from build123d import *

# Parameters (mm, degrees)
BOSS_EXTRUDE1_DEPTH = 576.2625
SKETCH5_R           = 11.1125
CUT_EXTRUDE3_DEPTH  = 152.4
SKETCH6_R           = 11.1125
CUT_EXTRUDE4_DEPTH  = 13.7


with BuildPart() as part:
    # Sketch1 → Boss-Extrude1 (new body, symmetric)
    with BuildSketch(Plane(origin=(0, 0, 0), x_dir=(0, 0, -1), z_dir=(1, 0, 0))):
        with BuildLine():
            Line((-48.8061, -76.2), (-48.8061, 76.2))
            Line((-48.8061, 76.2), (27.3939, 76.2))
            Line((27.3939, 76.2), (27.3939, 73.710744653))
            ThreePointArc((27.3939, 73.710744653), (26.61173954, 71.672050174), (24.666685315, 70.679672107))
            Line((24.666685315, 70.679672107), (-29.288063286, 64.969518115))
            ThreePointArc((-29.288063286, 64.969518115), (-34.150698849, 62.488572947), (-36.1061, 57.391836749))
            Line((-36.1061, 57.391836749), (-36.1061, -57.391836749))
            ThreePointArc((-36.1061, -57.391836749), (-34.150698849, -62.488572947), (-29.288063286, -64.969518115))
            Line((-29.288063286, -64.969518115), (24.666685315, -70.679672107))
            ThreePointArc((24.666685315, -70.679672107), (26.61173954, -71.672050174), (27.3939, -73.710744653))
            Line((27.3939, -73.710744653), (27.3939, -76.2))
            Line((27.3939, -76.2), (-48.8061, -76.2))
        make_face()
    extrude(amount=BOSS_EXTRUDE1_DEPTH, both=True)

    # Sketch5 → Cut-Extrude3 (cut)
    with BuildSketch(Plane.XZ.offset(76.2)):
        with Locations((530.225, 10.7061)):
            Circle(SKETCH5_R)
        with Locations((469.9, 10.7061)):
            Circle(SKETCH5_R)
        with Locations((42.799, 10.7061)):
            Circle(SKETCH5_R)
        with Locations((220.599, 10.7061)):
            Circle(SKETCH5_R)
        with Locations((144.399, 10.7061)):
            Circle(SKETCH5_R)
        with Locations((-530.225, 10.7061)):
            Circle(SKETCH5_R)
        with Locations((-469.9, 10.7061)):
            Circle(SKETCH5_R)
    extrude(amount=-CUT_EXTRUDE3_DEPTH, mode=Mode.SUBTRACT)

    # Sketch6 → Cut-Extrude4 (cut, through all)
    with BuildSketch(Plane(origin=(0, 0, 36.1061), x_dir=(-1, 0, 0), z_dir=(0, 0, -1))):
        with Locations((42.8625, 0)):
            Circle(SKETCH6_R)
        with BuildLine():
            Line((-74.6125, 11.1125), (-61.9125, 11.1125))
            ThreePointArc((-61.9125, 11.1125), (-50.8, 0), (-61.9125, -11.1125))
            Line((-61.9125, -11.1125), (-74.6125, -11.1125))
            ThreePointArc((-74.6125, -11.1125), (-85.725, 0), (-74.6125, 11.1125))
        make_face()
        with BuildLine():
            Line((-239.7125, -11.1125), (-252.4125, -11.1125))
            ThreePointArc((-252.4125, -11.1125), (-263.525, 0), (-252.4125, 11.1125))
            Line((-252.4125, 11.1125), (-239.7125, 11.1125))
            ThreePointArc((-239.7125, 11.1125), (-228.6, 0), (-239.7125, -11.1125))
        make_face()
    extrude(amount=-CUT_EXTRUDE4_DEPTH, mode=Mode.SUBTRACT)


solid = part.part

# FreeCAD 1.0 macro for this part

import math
import FreeCAD as App
import Part
import Sketcher
Q = App.Units.Quantity

doc = App.newDocument("Part")
body = doc.addObject("PartDesign::Body", "Body")

sketch1 = doc.addObject("Sketcher::SketchObject", "Sketch")
body.addObject(sketch1)
sketch1.AttachmentSupport = (doc.YZ_Plane, [""])
sketch1.MapMode = "FlatFace"
sketch1.addGeometry(Part.LineSegment(App.Vector(76.2, 48.8, 0), App.Vector(-76.2, 48.8, 0)), False)
sketch1.addGeometry(Part.LineSegment(App.Vector(-76.2, 48.8, 0), App.Vector(-76.2, -27.4, 0)), False)
sketch1.addGeometry(Part.LineSegment(App.Vector(-76.2, -27.4, 0), App.Vector(-73.7, -27.4, 0)), False)
sketch1.addGeometry(Part.ArcOfCircle(Part.Circle(App.Vector(-73.7, -24.3, 0), App.Vector(0, 0, 1), 3), math.radians(-90), math.radians(-6)), False)
sketch1.addGeometry(Part.LineSegment(App.Vector(-70.7, -24.7, 0), App.Vector(-65, 29.3, 0)), False)
sketch1.addGeometry(Part.ArcOfCircle(Part.Circle(App.Vector(-57.4, 28.5, 0), App.Vector(0, 0, 1), 7.6), math.radians(90), math.radians(174)), False)
sketch1.addGeometry(Part.LineSegment(App.Vector(-57.4, 36.1, 0), App.Vector(57.4, 36.1, 0)), False)
sketch1.addGeometry(Part.ArcOfCircle(Part.Circle(App.Vector(57.4, 28.5, 0), App.Vector(0, 0, 1), 7.6), math.radians(6), math.radians(90)), False)
sketch1.addGeometry(Part.LineSegment(App.Vector(65, 29.3, 0), App.Vector(70.7, -24.7, 0)), False)
sketch1.addGeometry(Part.ArcOfCircle(Part.Circle(App.Vector(73.7, -24.3, 0), App.Vector(0, 0, 1), 3), math.radians(-174), math.radians(-90)), False)
sketch1.addGeometry(Part.LineSegment(App.Vector(73.7, -27.4, 0), App.Vector(76.2, -27.4, 0)), False)
sketch1.addGeometry(Part.LineSegment(App.Vector(76.2, -27.4, 0), App.Vector(76.2, 48.8, 0)), False)
sketch1.addConstraint(Sketcher.Constraint("Coincident", 0, 2, 1, 1))
sketch1.addConstraint(Sketcher.Constraint("Coincident", 1, 2, 2, 1))
sketch1.addConstraint(Sketcher.Constraint("Tangent", 2, 2, 3, 1))
sketch1.addConstraint(Sketcher.Constraint("Tangent", 3, 2, 4, 1))
sketch1.addConstraint(Sketcher.Constraint("Tangent", 4, 2, 5, 2))
sketch1.addConstraint(Sketcher.Constraint("Tangent", 5, 1, 6, 1))
sketch1.addConstraint(Sketcher.Constraint("Tangent", 6, 2, 7, 2))
sketch1.addConstraint(Sketcher.Constraint("Tangent", 7, 1, 8, 1))
sketch1.addConstraint(Sketcher.Constraint("Tangent", 8, 2, 9, 1))
sketch1.addConstraint(Sketcher.Constraint("Tangent", 9, 2, 10, 1))
sketch1.addConstraint(Sketcher.Constraint("Coincident", 10, 2, 11, 1))
sketch1.addConstraint(Sketcher.Constraint("Coincident", 11, 2, 0, 1))
sketch1.addConstraint(Sketcher.Constraint("Horizontal", 0))
sketch1.addConstraint(Sketcher.Constraint("Vertical", 1))
sketch1.addConstraint(Sketcher.Constraint("Horizontal", 2))
sketch1.addConstraint(Sketcher.Constraint("Horizontal", 6))
sketch1.addConstraint(Sketcher.Constraint("Horizontal", 10))
sketch1.addConstraint(Sketcher.Constraint("Vertical", 11))
sketch1.addConstraint(Sketcher.Constraint("Equal", 5, 7))
sketch1.addConstraint(Sketcher.Constraint("Equal", 3, 9))
sketch1.addConstraint(Sketcher.Constraint("Symmetric", 3, 3, 9, 3, -2))
sketch1.addConstraint(Sketcher.Constraint("Horizontal", 4, 2, 7, 1))
sketch1.addConstraint(Sketcher.Constraint("Equal", 2, 10))
sketch1.addConstraint(Sketcher.Constraint("Radius", 5, Q("0.3 in")))
sketch1.addConstraint(Sketcher.Constraint("DistanceX", 0, 2, 0, 1, Q("6 in")))
sketch1.addConstraint(Sketcher.Constraint("DistanceY", 1, 2, 1, 1, Q("3 in")))
sketch1.addConstraint(Sketcher.Constraint("Radius", 3, Q("0.12 in")))
sketch1.addConstraint(Sketcher.Constraint("DistanceY", 5, 3, 0, 2, Q("0.8 in")))
sketch1.addConstraint(Sketcher.Constraint("DistanceY", 3, 3, -1, 1, Q("0.9585 in")))
sketch1.addConstraint(Sketcher.Constraint("DistanceX", 2, 1, 2, 2, 2.489255))
sketch1.addConstraint(Sketcher.Constraint("DistanceX", 6, 1, 6, 2, 114.783673))
pad1 = doc.addObject("PartDesign::Pad", "Pad")
body.addObject(pad1)
pad1.Profile = sketch1
pad1.Length = Q("45.375 in")
pad1.Midplane = True

sketch2 = doc.addObject("Sketcher::SketchObject", "Sketch001")
body.addObject(sketch2)
sketch2.AttachmentSupport = (doc.XZ_Plane, [""])
sketch2.MapMode = "FlatFace"
sketch2.AttachmentOffset = App.Placement(App.Vector(0, 0, 3 * 25.4), App.Rotation())
sketch2.addGeometry(Part.Circle(App.Vector(530, 11, 0), App.Vector(0, 0, 1), 11), False)
sketch2.addGeometry(Part.Circle(App.Vector(470, 11, 0), App.Vector(0, 0, 1), 11), False)
sketch2.addGeometry(Part.Circle(App.Vector(43, 11, 0), App.Vector(0, 0, 1), 11), False)
sketch2.addGeometry(Part.Circle(App.Vector(221, 11, 0), App.Vector(0, 0, 1), 11), False)
sketch2.addGeometry(Part.Circle(App.Vector(144, 11, 0), App.Vector(0, 0, 1), 11), False)
sketch2.addGeometry(Part.Circle(App.Vector(-530, 11, 0), App.Vector(0, 0, 1), 11), False)
sketch2.addGeometry(Part.Circle(App.Vector(-470, 11, 0), App.Vector(0, 0, 1), 11), False)
sketch2.addConstraint(Sketcher.Constraint("Equal", 0, 1))
sketch2.addConstraint(Sketcher.Constraint("Equal", 1, 2))
sketch2.addConstraint(Sketcher.Constraint("Equal", 2, 3))
sketch2.addConstraint(Sketcher.Constraint("Equal", 3, 4))
sketch2.addConstraint(Sketcher.Constraint("Equal", 4, 5))
sketch2.addConstraint(Sketcher.Constraint("Equal", 5, 6))
sketch2.addConstraint(Sketcher.Constraint("Symmetric", 0, 3, 5, 3, -2))
sketch2.addConstraint(Sketcher.Constraint("Symmetric", 1, 3, 6, 3, -2))
sketch2.addConstraint(Sketcher.Constraint("Horizontal", 0, 3, 1, 3))
sketch2.addConstraint(Sketcher.Constraint("Horizontal", 1, 3, 2, 3))
sketch2.addConstraint(Sketcher.Constraint("Horizontal", 2, 3, 3, 3))
sketch2.addConstraint(Sketcher.Constraint("Horizontal", 3, 3, 4, 3))
sketch2.addConstraint(Sketcher.Constraint("Diameter", 0, Q("0.875 in")))
sketch2.addConstraint(Sketcher.Constraint("DistanceX", 2, 3, 3, 3, Q("7 in")))
sketch2.addConstraint(Sketcher.Constraint("DistanceX", 4, 3, 3, 3, Q("3 in")))
sketch2.addConstraint(Sketcher.Constraint("DistanceX", 6, 3, 1, 3, Q("37 in")))
sketch2.addConstraint(Sketcher.Constraint("DistanceX", 2, 3, 0, 3, Q("19.19 in")))
sketch2.addConstraint(Sketcher.Constraint("DistanceX", 5, 3, 2, 3, Q("22.56 in")))
sketch2.addConstraint(Sketcher.Constraint("DistanceY", -1, 1, 0, 3, Q("0.4215 in")))
pocket1 = doc.addObject("PartDesign::Pocket", "Pocket")
body.addObject(pocket1)
pocket1.Profile = sketch2
pocket1.Length = Q("6 in")

sketch3 = doc.addObject("Sketcher::SketchObject", "Sketch002")
body.addObject(sketch3)
sketch3.AttachmentSupport = (doc.XY_Plane, [""])
sketch3.MapMode = "FlatFace"
sketch3.AttachmentOffset = App.Placement(App.Vector(0, 0, 1.4215 * 25.4), App.Rotation())
sketch3.addGeometry(Part.Circle(App.Vector(-43, 0, 0), App.Vector(0, 0, 1), 11), False)
sketch3.addGeometry(Part.LineSegment(App.Vector(62, 11, 0), App.Vector(75, 11, 0)), False)
sketch3.addGeometry(Part.ArcOfCircle(Part.Circle(App.Vector(75, 0, 0), App.Vector(0, 0, 1), 11), math.radians(-90), math.radians(90)), False)
sketch3.addGeometry(Part.LineSegment(App.Vector(75, -11, 0), App.Vector(62, -11, 0)), False)
sketch3.addGeometry(Part.ArcOfCircle(Part.Circle(App.Vector(62, 0, 0), App.Vector(0, 0, 1), 11), math.radians(90), math.radians(270)), False)
sketch3.addGeometry(Part.LineSegment(App.Vector(252, -11, 0), App.Vector(240, -11, 0)), False)
sketch3.addGeometry(Part.ArcOfCircle(Part.Circle(App.Vector(240, 0, 0), App.Vector(0, 0, 1), 11), math.radians(90), math.radians(270)), False)
sketch3.addGeometry(Part.LineSegment(App.Vector(240, 11, 0), App.Vector(252, 11, 0)), False)
sketch3.addGeometry(Part.ArcOfCircle(Part.Circle(App.Vector(252, 0, 0), App.Vector(0, 0, 1), 11), math.radians(-90), math.radians(90)), False)
sketch3.addConstraint(Sketcher.Constraint("Tangent", 1, 2, 2, 2))
sketch3.addConstraint(Sketcher.Constraint("Tangent", 2, 1, 3, 1))
sketch3.addConstraint(Sketcher.Constraint("Tangent", 3, 2, 4, 2))
sketch3.addConstraint(Sketcher.Constraint("Tangent", 4, 1, 1, 1))
sketch3.addConstraint(Sketcher.Constraint("Tangent", 5, 2, 6, 2))
sketch3.addConstraint(Sketcher.Constraint("Tangent", 6, 1, 7, 1))
sketch3.addConstraint(Sketcher.Constraint("Tangent", 7, 2, 8, 2))
sketch3.addConstraint(Sketcher.Constraint("Tangent", 8, 1, 5, 1))
sketch3.addConstraint(Sketcher.Constraint("Horizontal", 1))
sketch3.addConstraint(Sketcher.Constraint("Horizontal", 3))
sketch3.addConstraint(Sketcher.Constraint("Horizontal", 5))
sketch3.addConstraint(Sketcher.Constraint("Horizontal", 7))
sketch3.addConstraint(Sketcher.Constraint("Equal", 0, 2))
sketch3.addConstraint(Sketcher.Constraint("Equal", 4, 6))
sketch3.addConstraint(Sketcher.Constraint("PointOnObject", 0, 3, -1))
sketch3.addConstraint(Sketcher.Constraint("PointOnObject", 2, 3, -1))
sketch3.addConstraint(Sketcher.Constraint("PointOnObject", 6, 3, -1))
sketch3.addConstraint(Sketcher.Constraint("Equal", 3, 5))
sketch3.addConstraint(Sketcher.Constraint("Diameter", 0, Q("0.875 in")))
sketch3.addConstraint(Sketcher.Constraint("DistanceX", 1, 1, 1, 2, Q("0.5 in")))
sketch3.addConstraint(Sketcher.Constraint("DistanceX", 4, 3, 6, 3, Q("7 in")))
sketch3.addConstraint(Sketcher.Constraint("DistanceX", 0, 3, -1, 1, Q("1.6875 in")))
sketch3.addConstraint(Sketcher.Constraint("DistanceX", -1, 1, 2, 3, Q("2.9375 in")))
pocket2 = doc.addObject("PartDesign::Pocket", "Pocket001")
body.addObject(pocket2)
pocket2.Profile = sketch3
pocket2.Type = "ThroughAll"
pocket2.Reversed = True

doc.recompute()
